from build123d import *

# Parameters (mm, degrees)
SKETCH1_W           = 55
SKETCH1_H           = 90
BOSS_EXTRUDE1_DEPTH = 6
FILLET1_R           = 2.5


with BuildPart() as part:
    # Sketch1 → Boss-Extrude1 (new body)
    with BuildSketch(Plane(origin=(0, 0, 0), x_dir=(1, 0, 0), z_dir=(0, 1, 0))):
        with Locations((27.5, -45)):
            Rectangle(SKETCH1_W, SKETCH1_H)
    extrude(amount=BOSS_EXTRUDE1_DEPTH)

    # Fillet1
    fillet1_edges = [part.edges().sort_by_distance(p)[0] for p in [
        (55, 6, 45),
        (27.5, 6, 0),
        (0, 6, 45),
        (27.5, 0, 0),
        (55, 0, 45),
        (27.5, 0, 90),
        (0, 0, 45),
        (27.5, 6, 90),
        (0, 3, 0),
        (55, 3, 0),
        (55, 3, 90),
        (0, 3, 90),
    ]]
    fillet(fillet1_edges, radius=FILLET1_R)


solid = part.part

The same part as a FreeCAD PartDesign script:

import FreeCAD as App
import Part
import Sketcher


def add_polygon(sketch, points):
    """Adds a closed chain of lines whose ends are joined by coincident constraints."""
    first, n = sketch.GeometryCount, len(points)
    for a, b in zip(points, points[1:] + points[:1]):
        sketch.addGeometry(Part.LineSegment(App.Vector(*a, 0), App.Vector(*b, 0)), False)
    for i in range(n):
        sketch.addConstraint(Sketcher.Constraint("Coincident", first + i, 2, first + (i + 1) % n, 1))

doc = App.newDocument("Part")
body = doc.addObject("PartDesign::Body", "Body")

# Sketch on XZ plane
sketch1 = body.newObject("Sketcher::SketchObject", "Sketch")
sketch1.AttachmentSupport = (doc.getObject("XZ_Plane"), [""])
sketch1.MapMode = "FlatFace"
add_polygon(sketch1, [(0, 0), (0, 90), (55, 90), (55, 0)])  # lines 0-3
sketch1.addConstraint([
    Sketcher.Constraint("Vertical", 0),
    Sketcher.Constraint("Horizontal", 1),
    Sketcher.Constraint("Vertical", 2),
    Sketcher.Constraint("Horizontal", 3),
    Sketcher.Constraint("Coincident", 3, 2, -1, 1),
    Sketcher.Constraint("DistanceX", 1, 1, 1, 2, 55.0),
    Sketcher.Constraint("DistanceY", 0, 1, 0, 2, 90.0),
])
pad1 = body.newObject("PartDesign::Pad", "Pad")
pad1.Profile = sketch1
pad1.Length = 6
pad1.Reversed = True
doc.recompute()

fillet = body.newObject("PartDesign::Fillet", "Fillet")
fillet.Base = (pad1, ["Edge1"])
fillet.UseAllEdges = True
fillet.Radius = 2.5

doc.recompute()
